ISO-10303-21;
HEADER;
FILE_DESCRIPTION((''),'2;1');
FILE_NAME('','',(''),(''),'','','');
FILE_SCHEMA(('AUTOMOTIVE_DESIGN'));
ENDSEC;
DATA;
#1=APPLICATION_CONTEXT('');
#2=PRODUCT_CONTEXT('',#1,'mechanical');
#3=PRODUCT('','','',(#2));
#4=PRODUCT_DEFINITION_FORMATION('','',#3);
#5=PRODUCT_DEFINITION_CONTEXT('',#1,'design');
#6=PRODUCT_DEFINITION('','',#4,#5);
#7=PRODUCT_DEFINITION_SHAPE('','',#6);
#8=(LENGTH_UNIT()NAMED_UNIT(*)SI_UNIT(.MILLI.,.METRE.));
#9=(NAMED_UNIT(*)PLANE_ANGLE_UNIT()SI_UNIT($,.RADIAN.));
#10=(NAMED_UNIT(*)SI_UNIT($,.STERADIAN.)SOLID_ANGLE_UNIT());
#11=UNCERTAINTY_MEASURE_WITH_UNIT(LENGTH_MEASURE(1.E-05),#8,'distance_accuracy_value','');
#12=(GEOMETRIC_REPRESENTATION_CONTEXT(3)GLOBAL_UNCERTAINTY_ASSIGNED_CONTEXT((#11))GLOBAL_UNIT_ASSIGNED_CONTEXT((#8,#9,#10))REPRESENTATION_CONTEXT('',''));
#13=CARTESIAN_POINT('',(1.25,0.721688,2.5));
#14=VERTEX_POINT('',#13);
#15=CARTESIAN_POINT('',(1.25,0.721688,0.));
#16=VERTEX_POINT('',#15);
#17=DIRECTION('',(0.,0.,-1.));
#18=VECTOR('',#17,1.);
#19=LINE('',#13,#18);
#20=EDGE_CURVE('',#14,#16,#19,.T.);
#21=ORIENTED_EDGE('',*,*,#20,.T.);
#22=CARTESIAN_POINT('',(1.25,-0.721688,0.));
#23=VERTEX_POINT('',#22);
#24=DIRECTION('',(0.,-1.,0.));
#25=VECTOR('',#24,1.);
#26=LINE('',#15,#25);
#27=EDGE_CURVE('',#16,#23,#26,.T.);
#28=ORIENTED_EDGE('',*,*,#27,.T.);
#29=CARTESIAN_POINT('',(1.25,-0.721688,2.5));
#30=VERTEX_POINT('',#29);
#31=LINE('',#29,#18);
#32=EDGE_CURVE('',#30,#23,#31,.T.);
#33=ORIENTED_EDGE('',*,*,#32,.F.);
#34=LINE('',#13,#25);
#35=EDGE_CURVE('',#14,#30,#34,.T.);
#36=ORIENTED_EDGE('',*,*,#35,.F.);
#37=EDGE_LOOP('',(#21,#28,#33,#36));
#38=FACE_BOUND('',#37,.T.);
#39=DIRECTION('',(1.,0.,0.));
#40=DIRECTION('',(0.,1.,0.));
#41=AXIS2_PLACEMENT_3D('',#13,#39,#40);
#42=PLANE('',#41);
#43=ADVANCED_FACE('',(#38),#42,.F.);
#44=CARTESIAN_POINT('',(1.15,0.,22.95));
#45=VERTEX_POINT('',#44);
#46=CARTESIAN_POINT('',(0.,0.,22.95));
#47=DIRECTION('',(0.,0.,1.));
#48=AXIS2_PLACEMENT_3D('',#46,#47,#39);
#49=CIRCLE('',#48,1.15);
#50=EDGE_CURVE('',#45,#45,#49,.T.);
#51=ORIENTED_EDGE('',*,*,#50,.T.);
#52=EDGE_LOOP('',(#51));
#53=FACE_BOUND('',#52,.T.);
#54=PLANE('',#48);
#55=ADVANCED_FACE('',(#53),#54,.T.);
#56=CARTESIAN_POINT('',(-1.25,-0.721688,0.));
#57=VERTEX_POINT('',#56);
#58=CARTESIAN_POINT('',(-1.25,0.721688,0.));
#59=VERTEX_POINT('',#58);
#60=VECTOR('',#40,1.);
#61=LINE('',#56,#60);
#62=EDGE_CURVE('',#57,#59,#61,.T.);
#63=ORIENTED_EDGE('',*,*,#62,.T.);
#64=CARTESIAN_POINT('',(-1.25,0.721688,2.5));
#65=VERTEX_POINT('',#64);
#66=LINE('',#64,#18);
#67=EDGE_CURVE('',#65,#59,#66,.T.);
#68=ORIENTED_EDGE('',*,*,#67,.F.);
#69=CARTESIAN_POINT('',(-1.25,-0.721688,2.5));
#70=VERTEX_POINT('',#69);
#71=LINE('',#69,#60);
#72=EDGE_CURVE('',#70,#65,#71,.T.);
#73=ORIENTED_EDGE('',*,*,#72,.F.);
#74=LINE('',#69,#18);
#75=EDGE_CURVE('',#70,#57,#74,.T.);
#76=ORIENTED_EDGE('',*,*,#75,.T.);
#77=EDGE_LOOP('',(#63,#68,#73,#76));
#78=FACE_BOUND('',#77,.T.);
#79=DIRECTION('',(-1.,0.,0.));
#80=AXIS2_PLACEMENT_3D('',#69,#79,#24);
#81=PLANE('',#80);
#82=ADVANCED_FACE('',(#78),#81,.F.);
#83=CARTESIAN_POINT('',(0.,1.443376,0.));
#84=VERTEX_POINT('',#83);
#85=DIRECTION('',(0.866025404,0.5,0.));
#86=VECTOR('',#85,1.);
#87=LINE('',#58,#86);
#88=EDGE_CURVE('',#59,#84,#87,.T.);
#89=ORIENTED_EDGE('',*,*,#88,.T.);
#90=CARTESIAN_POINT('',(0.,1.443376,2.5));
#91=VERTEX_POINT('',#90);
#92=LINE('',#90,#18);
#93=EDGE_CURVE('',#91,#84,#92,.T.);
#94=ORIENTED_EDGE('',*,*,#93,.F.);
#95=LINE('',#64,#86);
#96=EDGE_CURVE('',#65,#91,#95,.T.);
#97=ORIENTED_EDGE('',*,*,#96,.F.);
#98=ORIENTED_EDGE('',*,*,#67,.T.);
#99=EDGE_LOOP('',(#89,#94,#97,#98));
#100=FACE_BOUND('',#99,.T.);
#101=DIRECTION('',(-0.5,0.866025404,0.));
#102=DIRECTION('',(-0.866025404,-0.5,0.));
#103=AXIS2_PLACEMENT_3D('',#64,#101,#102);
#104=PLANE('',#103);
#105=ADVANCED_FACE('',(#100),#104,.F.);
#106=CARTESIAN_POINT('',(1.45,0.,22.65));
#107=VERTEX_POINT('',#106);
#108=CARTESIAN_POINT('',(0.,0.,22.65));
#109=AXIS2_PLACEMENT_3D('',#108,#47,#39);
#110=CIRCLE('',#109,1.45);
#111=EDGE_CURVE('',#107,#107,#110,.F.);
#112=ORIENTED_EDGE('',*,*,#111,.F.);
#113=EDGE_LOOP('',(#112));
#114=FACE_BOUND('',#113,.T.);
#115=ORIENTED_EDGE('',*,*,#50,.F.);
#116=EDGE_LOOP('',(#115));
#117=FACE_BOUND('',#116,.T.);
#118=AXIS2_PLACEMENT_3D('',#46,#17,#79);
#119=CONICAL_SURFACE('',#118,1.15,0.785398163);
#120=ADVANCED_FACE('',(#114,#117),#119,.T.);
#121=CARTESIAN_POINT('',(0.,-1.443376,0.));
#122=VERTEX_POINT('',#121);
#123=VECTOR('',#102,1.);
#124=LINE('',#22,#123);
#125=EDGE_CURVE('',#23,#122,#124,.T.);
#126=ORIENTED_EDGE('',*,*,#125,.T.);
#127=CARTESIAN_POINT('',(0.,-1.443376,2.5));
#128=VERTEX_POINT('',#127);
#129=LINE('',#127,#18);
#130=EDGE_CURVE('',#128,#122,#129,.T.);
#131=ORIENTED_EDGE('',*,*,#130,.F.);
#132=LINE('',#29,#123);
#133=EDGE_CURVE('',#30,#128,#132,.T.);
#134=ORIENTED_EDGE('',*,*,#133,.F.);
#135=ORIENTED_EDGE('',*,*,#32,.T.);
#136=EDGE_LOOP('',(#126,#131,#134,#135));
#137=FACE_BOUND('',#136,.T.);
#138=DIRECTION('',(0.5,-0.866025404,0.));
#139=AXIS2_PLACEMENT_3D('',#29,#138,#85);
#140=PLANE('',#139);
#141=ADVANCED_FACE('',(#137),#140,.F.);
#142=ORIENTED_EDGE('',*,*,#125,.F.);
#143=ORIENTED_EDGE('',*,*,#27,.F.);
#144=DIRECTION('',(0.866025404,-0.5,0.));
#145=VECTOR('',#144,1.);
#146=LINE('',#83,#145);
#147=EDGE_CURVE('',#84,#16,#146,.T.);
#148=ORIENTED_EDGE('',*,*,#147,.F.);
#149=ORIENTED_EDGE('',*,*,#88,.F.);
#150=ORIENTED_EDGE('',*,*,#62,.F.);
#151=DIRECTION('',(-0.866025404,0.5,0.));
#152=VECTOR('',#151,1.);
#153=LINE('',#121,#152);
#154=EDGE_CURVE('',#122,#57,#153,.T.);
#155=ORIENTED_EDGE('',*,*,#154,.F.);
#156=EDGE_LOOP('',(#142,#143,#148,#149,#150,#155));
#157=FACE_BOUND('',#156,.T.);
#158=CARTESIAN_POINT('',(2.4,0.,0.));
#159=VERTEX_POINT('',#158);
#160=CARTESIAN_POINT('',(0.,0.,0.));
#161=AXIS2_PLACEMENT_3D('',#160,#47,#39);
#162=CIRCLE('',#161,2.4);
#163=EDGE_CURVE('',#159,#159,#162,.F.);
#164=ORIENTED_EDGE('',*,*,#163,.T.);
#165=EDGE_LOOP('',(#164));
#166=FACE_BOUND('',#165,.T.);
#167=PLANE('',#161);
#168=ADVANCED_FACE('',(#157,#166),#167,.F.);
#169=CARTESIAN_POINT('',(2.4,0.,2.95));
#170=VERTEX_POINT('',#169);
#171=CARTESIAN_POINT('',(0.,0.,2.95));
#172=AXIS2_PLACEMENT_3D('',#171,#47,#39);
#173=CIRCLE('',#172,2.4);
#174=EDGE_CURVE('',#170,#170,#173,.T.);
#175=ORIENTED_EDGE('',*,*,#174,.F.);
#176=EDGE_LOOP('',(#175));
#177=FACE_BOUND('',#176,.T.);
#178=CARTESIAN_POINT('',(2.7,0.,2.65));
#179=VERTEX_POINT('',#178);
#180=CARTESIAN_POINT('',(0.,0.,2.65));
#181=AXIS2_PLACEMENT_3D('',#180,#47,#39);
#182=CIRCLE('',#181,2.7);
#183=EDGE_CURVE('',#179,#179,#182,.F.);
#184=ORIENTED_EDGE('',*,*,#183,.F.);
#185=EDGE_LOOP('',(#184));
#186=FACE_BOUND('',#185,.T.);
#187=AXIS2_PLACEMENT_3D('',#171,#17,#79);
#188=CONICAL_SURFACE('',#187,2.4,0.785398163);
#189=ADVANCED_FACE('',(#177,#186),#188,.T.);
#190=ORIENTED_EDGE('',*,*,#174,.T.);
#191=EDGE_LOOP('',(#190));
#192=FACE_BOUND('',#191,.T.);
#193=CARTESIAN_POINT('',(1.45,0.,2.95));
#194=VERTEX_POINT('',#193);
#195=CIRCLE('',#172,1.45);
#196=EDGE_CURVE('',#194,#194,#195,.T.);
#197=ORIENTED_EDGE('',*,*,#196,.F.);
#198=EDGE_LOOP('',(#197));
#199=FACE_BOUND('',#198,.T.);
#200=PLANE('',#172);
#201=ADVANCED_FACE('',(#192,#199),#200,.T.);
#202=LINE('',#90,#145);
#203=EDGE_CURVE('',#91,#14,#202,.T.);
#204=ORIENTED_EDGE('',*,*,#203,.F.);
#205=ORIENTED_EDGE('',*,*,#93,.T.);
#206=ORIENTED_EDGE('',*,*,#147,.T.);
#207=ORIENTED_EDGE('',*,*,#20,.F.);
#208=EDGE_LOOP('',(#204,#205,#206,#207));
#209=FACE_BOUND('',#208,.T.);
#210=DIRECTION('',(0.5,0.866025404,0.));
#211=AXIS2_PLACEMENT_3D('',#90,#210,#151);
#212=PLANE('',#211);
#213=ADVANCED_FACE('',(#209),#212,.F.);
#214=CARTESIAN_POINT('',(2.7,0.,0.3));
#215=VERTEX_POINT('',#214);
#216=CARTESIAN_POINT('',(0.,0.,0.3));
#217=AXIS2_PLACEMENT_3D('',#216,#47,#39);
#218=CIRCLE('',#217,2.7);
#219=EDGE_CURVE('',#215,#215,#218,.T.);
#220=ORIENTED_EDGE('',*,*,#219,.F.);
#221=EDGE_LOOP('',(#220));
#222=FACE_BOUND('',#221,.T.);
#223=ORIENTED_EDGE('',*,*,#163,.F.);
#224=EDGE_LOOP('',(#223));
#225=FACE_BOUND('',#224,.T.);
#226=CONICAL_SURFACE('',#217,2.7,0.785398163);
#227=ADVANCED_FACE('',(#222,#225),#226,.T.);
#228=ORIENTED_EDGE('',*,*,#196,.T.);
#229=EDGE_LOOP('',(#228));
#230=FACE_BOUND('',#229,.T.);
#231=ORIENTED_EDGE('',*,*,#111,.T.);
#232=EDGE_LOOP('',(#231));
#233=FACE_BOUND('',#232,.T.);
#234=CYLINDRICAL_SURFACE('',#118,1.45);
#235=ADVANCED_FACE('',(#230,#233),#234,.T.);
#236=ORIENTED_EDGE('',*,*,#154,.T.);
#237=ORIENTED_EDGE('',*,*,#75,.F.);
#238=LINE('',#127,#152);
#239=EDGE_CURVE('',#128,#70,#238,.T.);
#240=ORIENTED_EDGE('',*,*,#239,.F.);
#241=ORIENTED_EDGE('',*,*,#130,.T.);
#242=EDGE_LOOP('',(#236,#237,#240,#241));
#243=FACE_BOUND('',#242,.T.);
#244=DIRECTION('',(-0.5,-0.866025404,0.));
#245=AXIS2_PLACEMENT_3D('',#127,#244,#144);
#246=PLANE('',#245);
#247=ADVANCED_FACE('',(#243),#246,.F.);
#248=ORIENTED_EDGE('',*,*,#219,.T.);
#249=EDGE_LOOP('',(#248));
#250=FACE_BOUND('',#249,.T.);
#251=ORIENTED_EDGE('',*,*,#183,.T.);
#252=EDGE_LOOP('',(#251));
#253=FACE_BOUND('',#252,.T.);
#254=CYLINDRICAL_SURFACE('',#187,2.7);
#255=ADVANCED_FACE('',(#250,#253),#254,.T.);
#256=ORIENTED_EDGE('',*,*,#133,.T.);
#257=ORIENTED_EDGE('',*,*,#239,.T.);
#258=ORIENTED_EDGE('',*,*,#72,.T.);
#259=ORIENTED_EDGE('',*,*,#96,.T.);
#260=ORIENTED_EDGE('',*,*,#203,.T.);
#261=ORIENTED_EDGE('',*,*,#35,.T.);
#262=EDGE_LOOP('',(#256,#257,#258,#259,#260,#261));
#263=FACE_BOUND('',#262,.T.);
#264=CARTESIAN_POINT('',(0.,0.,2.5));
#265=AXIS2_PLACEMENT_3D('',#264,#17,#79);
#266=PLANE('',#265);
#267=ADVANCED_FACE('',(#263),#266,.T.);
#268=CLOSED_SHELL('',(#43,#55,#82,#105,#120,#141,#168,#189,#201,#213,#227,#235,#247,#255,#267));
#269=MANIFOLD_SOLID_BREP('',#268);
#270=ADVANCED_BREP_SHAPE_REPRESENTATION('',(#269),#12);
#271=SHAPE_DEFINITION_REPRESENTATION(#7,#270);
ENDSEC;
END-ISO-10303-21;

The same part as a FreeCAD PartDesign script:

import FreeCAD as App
import Part
import Sketcher
from FreeCAD import Vector
Q = App.Units.Quantity


def edges_at(feature, points):
    """Names of the edges that pass closest to the given points."""
    edges = feature.Shape.Edges
    near = lambda p: min(range(len(edges)), key=lambda i: edges[i].distToShape(Part.Vertex(*p))[0])
    return sorted({f"Edge{near(p) + 1}" for p in points})

doc = App.newDocument("Part")
body = doc.addObject("PartDesign::Body", "Body")

sketch1 = body.newObject("Sketcher::SketchObject", "Sketch")
sketch1.AttachmentSupport = (doc.getObject("XY_Plane"), [""])
sketch1.MapMode = "FlatFace"
sketch1.addGeometry(Part.Circle(Vector(0, 0, 0), Vector(0, 0, 1), 2.7), False)
sketch1.addConstraint([
    Sketcher.Constraint("Coincident", 0, 3, -1, 1),
    Sketcher.Constraint("Diameter", 0, Q("5.4 mm")),
])
pad1 = body.newObject("PartDesign::Pad", "Pad")
pad1.Profile = sketch1
pad1.Length = 2.95

sketch2 = body.newObject("Sketcher::SketchObject", "Sketch001")
sketch2.AttachmentSupport = (doc.getObject("XY_Plane"), [""])
sketch2.MapMode = "FlatFace"
sketch2.AttachmentOffset = App.Placement(Vector(0, 0, 2.95), App.Rotation())
sketch2.addGeometry(Part.Circle(Vector(0, 0, 0), Vector(0, 0, 1), 1.4), False)
sketch2.addConstraint([
    Sketcher.Constraint("Coincident", 0, 3, -1, 1),
    Sketcher.Constraint("Diameter", 0, Q("2.9 mm")),
])
pad2 = body.newObject("PartDesign::Pad", "Pad001")
pad2.Profile = sketch2
pad2.Length = 20
doc.recompute()

chamfer = body.newObject("PartDesign::Chamfer", "Chamfer")
chamfer.Base = (pad2, edges_at(pad2, [(-2.7, 0, 0), (-2.7, 0, 2.95), (-1.45, 0, 22.95)]))
chamfer.Size = 0.3

sketch3 = body.newObject("Sketcher::SketchObject", "Sketch002")
sketch3.AttachmentSupport = (doc.getObject("XY_Plane"), [""])
sketch3.MapMode = "FlatFace"
sketch3.addGeometry([
    Part.LineSegment(Vector(-1.2, 0.7, 0), Vector(0, 1.4, 0)),
    Part.LineSegment(Vector(0, 1.4, 0), Vector(1.2, 0.7, 0)),
    Part.LineSegment(Vector(1.2, 0.7, 0), Vector(1.2, -0.7, 0)),
    Part.LineSegment(Vector(1.2, -0.7, 0), Vector(0, -1.4, 0)),
    Part.LineSegment(Vector(0, -1.4, 0), Vector(-1.2, -0.7, 0)),
    Part.LineSegment(Vector(-1.2, -0.7, 0), Vector(-1.2, 0.7, 0)),
], False)
sketch3.addConstraint([
    Sketcher.Constraint("Coincident", 0, 2, 1, 1),
    Sketcher.Constraint("Coincident", 1, 2, 2, 1),
    Sketcher.Constraint("Coincident", 2, 2, 3, 1),
    Sketcher.Constraint("Coincident", 3, 2, 4, 1),
    Sketcher.Constraint("Coincident", 4, 2, 5, 1),
    Sketcher.Constraint("Coincident", 5, 2, 0, 1),
    Sketcher.Constraint("Vertical", 2),
    Sketcher.Constraint("Vertical", 5),
    Sketcher.Constraint("Symmetric", 0, 2, 3, 2, -1, 1),
    Sketcher.Constraint("Symmetric", 1, 2, 4, 2, -1, 1),
    Sketcher.Constraint("PointOnObject", 0, 2, -2),
    Sketcher.Constraint("Parallel", 0, 3),
    Sketcher.Constraint("Horizontal", 2, 2, 4, 2),
    Sketcher.Constraint("Angle", 0, Q("30 deg")),
    Sketcher.Constraint("DistanceX", 4, 2, 2, 2, Q("2.5 mm")),
    Sketcher.Constraint("DistanceY", 2, 2, 2, 1, Q("1.443376 mm")),
])
pocket1 = body.newObject("PartDesign::Pocket", "Pocket")
pocket1.Profile = sketch3
pocket1.Length = 2.5
pocket1.Reversed = True

doc.recompute()
